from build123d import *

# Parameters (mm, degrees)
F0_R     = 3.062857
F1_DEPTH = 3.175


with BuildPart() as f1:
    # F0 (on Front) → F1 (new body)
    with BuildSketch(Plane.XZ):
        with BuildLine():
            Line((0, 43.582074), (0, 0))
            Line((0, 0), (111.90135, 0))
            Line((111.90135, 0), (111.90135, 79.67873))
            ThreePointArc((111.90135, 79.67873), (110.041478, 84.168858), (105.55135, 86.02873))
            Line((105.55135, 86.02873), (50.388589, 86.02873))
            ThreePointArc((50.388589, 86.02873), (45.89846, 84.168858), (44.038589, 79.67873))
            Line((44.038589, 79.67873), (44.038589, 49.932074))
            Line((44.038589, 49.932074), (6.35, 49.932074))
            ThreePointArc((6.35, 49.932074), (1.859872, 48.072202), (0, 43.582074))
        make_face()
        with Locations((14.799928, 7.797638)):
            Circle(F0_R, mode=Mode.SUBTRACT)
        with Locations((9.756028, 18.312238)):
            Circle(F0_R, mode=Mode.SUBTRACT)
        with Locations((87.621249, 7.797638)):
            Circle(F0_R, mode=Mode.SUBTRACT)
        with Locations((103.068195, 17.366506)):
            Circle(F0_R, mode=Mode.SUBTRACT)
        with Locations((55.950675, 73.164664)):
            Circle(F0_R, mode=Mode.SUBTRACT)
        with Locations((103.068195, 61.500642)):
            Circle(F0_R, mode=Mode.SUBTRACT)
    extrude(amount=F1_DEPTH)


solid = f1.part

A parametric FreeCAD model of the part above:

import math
import FreeCAD as App
import Part
import Sketcher

V = App.Vector
Q = App.Units.Quantity

doc = App.newDocument("Part")
params = doc.addObject("Spreadsheet::Sheet", "Params")
for row, (alias, value) in enumerate([
    ("sketch1_radius", "0.25 in"),
    ("pad1_length", "0.125 in"),
], start=1):
    params.set(f"A{row}", alias)
    params.set(f"B{row}", "=" + value)
    params.setAlias(f"B{row}", alias)

body = doc.addObject("PartDesign::Body", "Body")

# Sketch on XZ plane
sketch1 = body.newObject("Sketcher::SketchObject", "Sketch")
sketch1.AttachmentSupport = (doc.getObject("XZ_Plane"), [""])
sketch1.MapMode = "FlatFace"
sketch1.addGeometry([
    Part.LineSegment(V(0, 43.6, 0), V(0, 0, 0)),  # 0
    Part.LineSegment(V(0, 0, 0), V(111.9, 0, 0)),  # 1
    Part.LineSegment(V(111.9, 0, 0), V(111.9, 79.7, 0)),  # 2
    Part.ArcOfCircle(Part.Circle(V(105.6, 79.7, 0), V(0, 0, 1), 6.4), math.radians(0), math.radians(90)),  # 3
    Part.LineSegment(V(105.6, 86, 0), V(50.4, 86, 0)),  # 4
    Part.ArcOfCircle(Part.Circle(V(50.4, 79.7, 0), V(0, 0, 1), 6.3), math.radians(90), math.radians(180)),  # 5
    Part.LineSegment(V(44, 79.7, 0), V(44, 49.9, 0)),  # 6
    Part.LineSegment(V(44, 49.9, 0), V(6.3, 49.9, 0)),  # 7
    Part.ArcOfCircle(Part.Circle(V(6.4, 43.6, 0), V(0, 0, 1), 6.4), math.radians(90), math.radians(180)),  # 8
    Part.Circle(V(14.8, 7.8, 0), V(0, 0, 1), 3.1),  # 9
    Part.Circle(V(9.8, 18.3, 0), V(0, 0, 1), 3.1),  # 10
    Part.Circle(V(87.6, 7.8, 0), V(0, 0, 1), 3.1),  # 11
    Part.Circle(V(103.1, 17.4, 0), V(0, 0, 1), 3.1),  # 12
    Part.Circle(V(56, 73.2, 0), V(0, 0, 1), 3.1),  # 13
    Part.Circle(V(103.1, 61.5, 0), V(0, 0, 1), 3.1),  # 14
], False)
sketch1.addConstraint([
    Sketcher.Constraint("Coincident", 0, 2, 1, 1),
    Sketcher.Constraint("Coincident", 1, 2, 2, 1),
    Sketcher.Constraint("Tangent", 2, 2, 3, 1),
    Sketcher.Constraint("Tangent", 3, 2, 4, 1),
    Sketcher.Constraint("Tangent", 4, 2, 5, 1),
    Sketcher.Constraint("Tangent", 5, 2, 6, 1),
    Sketcher.Constraint("Coincident", 6, 2, 7, 1),
    Sketcher.Constraint("Tangent", 7, 2, 8, 1),
    Sketcher.Constraint("Tangent", 8, 2, 0, 1),
    Sketcher.Constraint("Vertical", 0),
    Sketcher.Constraint("Horizontal", 1),
    Sketcher.Constraint("Vertical", 2),
    Sketcher.Constraint("Horizontal", 4),
    Sketcher.Constraint("Vertical", 6),
    Sketcher.Constraint("Horizontal", 7),
    Sketcher.Constraint("Coincident", 0, 2, -1, 1),
    Sketcher.Constraint("Equal", 3, 5),
    Sketcher.Constraint("Equal", 5, 8),
    Sketcher.Constraint("Equal", 9, 10),
    Sketcher.Constraint("Equal", 10, 11),
    Sketcher.Constraint("Equal", 11, 12),
    Sketcher.Constraint("Equal", 12, 13),
    Sketcher.Constraint("Equal", 13, 14),
    Sketcher.Constraint("Horizontal", 9, 3, 11, 3),
    Sketcher.Constraint("Vertical", 12, 3, 14, 3),
    Sketcher.Constraint("Radius", 3, Q("0.25 in")),
    Sketcher.Constraint("Diameter", 9, 6.125714),
    Sketcher.Constraint("DistanceX", 1, 1, 1, 2, 111.90135),
    Sketcher.Constraint("DistanceX", 4, 2, 4, 1, 55.162761),
    Sketcher.Constraint("DistanceY", 2, 1, 2, 2, 79.67873),
    Sketcher.Constraint("DistanceX", 10, 3, 9, 3, 5.0439),
    Sketcher.Constraint("DistanceY", 9, 3, 10, 3, 10.5146),
    Sketcher.Constraint("DistanceX", 11, 3, 3, 3, 17.930101),
    Sketcher.Constraint("DistanceY", 0, 2, 0, 1, 43.582074),
    Sketcher.Constraint("DistanceY", -1, 1, 10, 3, 18.312238),
    Sketcher.Constraint("DistanceX", 9, 3, 5, 3, 35.588659),
    Sketcher.Constraint("DistanceY", 11, 3, 12, 3, 9.568868),
    Sketcher.Constraint("DistanceY", 8, 3, 13, 3, 29.58259),
    Sketcher.Constraint("DistanceX", 13, 3, 14, 3, 47.11752),
    Sketcher.Constraint("DistanceY", 14, 3, 5, 3, 18.178089),
    Sketcher.Constraint("DistanceX", -1, 1, 12, 3, 103.068195),
])
sketch1.setExpression("Constraints[25]", "Params.sketch1_radius")
pad1 = body.newObject("PartDesign::Pad", "Pad")
pad1.Profile = sketch1
pad1.setExpression("Length", "Params.pad1_length")

doc.recompute()
